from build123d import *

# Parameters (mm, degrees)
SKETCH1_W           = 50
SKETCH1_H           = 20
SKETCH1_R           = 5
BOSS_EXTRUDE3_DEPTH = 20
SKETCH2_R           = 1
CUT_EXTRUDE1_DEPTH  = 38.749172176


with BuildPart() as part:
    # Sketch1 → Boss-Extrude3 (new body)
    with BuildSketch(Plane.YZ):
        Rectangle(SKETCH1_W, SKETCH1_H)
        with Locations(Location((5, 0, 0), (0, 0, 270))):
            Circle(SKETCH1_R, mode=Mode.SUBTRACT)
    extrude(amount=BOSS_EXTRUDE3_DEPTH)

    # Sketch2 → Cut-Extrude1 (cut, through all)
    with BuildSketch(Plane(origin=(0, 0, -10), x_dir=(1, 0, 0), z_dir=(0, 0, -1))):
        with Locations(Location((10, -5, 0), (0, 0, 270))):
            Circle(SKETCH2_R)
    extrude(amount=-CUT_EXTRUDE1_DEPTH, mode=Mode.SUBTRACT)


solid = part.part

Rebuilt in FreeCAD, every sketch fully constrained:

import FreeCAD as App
import Part
import Sketcher
from FreeCAD import Vector


def add_polygon(sketch, points):
    """Adds a closed chain of lines whose ends are joined by coincident constraints."""
    first, n = sketch.GeometryCount, len(points)
    for a, b in zip(points, points[1:] + points[:1]):
        sketch.addGeometry(Part.LineSegment(App.Vector(*a, 0), App.Vector(*b, 0)), False)
    for i in range(n):
        sketch.addConstraint(Sketcher.Constraint("Coincident", first + i, 2, first + (i + 1) % n, 1))

doc = App.newDocument("Part")
body = doc.addObject("PartDesign::Body", "Body")

# Sketch on YZ plane
sketch1 = body.newObject("Sketcher::SketchObject", "Sketch")
sketch1.AttachmentSupport = (doc.getObject("YZ_Plane"), [""])
sketch1.MapMode = "FlatFace"
add_polygon(sketch1, [(-25, 10), (-25, -10), (25, -10), (25, 10)])  # lines 0-3
sketch1.addGeometry(Part.Circle(Vector(5, 0, 0), Vector(0, 0, 1), 5), False)  # 4
sketch1.addConstraint([
    Sketcher.Constraint("Vertical", 0),
    Sketcher.Constraint("Horizontal", 1),
    Sketcher.Constraint("Vertical", 2),
    Sketcher.Constraint("Horizontal", 3),
    Sketcher.Constraint("Symmetric", 0, 2, 2, 2, -1, 1),
    Sketcher.Constraint("PointOnObject", 4, 3, -1),
    Sketcher.Constraint("Diameter", 4, 10.0),
    Sketcher.Constraint("DistanceX", 1, 1, 1, 2, 50.0),
    Sketcher.Constraint("DistanceY", 0, 2, 0, 1, 20.0),
    Sketcher.Constraint("DistanceX", -1, 1, 4, 3, 5.0),
])
pad1 = body.newObject("PartDesign::Pad", "Pad")
pad1.Profile = sketch1
pad1.Length = 20

# Sketch on XY plane
sketch2 = body.newObject("Sketcher::SketchObject", "Sketch001")
sketch2.AttachmentSupport = (doc.getObject("XY_Plane"), [""])
sketch2.MapMode = "FlatFace"
sketch2.AttachmentOffset = App.Placement(Vector(0, 0, -10), App.Rotation())
sketch2.addGeometry(Part.Circle(Vector(10, 5, 0), Vector(0, 0, 1), 1), False)
sketch2.addConstraint([
    Sketcher.Constraint("Diameter", 0, 2.0),
    Sketcher.Constraint("DistanceX", -1, 1, 0, 3, 10.0),
    Sketcher.Constraint("DistanceY", -1, 1, 0, 3, 5.0),
])
pocket1 = body.newObject("PartDesign::Pocket", "Pocket")
pocket1.Profile = sketch2
pocket1.Type = "ThroughAll"
pocket1.Reversed = True

doc.recompute()
